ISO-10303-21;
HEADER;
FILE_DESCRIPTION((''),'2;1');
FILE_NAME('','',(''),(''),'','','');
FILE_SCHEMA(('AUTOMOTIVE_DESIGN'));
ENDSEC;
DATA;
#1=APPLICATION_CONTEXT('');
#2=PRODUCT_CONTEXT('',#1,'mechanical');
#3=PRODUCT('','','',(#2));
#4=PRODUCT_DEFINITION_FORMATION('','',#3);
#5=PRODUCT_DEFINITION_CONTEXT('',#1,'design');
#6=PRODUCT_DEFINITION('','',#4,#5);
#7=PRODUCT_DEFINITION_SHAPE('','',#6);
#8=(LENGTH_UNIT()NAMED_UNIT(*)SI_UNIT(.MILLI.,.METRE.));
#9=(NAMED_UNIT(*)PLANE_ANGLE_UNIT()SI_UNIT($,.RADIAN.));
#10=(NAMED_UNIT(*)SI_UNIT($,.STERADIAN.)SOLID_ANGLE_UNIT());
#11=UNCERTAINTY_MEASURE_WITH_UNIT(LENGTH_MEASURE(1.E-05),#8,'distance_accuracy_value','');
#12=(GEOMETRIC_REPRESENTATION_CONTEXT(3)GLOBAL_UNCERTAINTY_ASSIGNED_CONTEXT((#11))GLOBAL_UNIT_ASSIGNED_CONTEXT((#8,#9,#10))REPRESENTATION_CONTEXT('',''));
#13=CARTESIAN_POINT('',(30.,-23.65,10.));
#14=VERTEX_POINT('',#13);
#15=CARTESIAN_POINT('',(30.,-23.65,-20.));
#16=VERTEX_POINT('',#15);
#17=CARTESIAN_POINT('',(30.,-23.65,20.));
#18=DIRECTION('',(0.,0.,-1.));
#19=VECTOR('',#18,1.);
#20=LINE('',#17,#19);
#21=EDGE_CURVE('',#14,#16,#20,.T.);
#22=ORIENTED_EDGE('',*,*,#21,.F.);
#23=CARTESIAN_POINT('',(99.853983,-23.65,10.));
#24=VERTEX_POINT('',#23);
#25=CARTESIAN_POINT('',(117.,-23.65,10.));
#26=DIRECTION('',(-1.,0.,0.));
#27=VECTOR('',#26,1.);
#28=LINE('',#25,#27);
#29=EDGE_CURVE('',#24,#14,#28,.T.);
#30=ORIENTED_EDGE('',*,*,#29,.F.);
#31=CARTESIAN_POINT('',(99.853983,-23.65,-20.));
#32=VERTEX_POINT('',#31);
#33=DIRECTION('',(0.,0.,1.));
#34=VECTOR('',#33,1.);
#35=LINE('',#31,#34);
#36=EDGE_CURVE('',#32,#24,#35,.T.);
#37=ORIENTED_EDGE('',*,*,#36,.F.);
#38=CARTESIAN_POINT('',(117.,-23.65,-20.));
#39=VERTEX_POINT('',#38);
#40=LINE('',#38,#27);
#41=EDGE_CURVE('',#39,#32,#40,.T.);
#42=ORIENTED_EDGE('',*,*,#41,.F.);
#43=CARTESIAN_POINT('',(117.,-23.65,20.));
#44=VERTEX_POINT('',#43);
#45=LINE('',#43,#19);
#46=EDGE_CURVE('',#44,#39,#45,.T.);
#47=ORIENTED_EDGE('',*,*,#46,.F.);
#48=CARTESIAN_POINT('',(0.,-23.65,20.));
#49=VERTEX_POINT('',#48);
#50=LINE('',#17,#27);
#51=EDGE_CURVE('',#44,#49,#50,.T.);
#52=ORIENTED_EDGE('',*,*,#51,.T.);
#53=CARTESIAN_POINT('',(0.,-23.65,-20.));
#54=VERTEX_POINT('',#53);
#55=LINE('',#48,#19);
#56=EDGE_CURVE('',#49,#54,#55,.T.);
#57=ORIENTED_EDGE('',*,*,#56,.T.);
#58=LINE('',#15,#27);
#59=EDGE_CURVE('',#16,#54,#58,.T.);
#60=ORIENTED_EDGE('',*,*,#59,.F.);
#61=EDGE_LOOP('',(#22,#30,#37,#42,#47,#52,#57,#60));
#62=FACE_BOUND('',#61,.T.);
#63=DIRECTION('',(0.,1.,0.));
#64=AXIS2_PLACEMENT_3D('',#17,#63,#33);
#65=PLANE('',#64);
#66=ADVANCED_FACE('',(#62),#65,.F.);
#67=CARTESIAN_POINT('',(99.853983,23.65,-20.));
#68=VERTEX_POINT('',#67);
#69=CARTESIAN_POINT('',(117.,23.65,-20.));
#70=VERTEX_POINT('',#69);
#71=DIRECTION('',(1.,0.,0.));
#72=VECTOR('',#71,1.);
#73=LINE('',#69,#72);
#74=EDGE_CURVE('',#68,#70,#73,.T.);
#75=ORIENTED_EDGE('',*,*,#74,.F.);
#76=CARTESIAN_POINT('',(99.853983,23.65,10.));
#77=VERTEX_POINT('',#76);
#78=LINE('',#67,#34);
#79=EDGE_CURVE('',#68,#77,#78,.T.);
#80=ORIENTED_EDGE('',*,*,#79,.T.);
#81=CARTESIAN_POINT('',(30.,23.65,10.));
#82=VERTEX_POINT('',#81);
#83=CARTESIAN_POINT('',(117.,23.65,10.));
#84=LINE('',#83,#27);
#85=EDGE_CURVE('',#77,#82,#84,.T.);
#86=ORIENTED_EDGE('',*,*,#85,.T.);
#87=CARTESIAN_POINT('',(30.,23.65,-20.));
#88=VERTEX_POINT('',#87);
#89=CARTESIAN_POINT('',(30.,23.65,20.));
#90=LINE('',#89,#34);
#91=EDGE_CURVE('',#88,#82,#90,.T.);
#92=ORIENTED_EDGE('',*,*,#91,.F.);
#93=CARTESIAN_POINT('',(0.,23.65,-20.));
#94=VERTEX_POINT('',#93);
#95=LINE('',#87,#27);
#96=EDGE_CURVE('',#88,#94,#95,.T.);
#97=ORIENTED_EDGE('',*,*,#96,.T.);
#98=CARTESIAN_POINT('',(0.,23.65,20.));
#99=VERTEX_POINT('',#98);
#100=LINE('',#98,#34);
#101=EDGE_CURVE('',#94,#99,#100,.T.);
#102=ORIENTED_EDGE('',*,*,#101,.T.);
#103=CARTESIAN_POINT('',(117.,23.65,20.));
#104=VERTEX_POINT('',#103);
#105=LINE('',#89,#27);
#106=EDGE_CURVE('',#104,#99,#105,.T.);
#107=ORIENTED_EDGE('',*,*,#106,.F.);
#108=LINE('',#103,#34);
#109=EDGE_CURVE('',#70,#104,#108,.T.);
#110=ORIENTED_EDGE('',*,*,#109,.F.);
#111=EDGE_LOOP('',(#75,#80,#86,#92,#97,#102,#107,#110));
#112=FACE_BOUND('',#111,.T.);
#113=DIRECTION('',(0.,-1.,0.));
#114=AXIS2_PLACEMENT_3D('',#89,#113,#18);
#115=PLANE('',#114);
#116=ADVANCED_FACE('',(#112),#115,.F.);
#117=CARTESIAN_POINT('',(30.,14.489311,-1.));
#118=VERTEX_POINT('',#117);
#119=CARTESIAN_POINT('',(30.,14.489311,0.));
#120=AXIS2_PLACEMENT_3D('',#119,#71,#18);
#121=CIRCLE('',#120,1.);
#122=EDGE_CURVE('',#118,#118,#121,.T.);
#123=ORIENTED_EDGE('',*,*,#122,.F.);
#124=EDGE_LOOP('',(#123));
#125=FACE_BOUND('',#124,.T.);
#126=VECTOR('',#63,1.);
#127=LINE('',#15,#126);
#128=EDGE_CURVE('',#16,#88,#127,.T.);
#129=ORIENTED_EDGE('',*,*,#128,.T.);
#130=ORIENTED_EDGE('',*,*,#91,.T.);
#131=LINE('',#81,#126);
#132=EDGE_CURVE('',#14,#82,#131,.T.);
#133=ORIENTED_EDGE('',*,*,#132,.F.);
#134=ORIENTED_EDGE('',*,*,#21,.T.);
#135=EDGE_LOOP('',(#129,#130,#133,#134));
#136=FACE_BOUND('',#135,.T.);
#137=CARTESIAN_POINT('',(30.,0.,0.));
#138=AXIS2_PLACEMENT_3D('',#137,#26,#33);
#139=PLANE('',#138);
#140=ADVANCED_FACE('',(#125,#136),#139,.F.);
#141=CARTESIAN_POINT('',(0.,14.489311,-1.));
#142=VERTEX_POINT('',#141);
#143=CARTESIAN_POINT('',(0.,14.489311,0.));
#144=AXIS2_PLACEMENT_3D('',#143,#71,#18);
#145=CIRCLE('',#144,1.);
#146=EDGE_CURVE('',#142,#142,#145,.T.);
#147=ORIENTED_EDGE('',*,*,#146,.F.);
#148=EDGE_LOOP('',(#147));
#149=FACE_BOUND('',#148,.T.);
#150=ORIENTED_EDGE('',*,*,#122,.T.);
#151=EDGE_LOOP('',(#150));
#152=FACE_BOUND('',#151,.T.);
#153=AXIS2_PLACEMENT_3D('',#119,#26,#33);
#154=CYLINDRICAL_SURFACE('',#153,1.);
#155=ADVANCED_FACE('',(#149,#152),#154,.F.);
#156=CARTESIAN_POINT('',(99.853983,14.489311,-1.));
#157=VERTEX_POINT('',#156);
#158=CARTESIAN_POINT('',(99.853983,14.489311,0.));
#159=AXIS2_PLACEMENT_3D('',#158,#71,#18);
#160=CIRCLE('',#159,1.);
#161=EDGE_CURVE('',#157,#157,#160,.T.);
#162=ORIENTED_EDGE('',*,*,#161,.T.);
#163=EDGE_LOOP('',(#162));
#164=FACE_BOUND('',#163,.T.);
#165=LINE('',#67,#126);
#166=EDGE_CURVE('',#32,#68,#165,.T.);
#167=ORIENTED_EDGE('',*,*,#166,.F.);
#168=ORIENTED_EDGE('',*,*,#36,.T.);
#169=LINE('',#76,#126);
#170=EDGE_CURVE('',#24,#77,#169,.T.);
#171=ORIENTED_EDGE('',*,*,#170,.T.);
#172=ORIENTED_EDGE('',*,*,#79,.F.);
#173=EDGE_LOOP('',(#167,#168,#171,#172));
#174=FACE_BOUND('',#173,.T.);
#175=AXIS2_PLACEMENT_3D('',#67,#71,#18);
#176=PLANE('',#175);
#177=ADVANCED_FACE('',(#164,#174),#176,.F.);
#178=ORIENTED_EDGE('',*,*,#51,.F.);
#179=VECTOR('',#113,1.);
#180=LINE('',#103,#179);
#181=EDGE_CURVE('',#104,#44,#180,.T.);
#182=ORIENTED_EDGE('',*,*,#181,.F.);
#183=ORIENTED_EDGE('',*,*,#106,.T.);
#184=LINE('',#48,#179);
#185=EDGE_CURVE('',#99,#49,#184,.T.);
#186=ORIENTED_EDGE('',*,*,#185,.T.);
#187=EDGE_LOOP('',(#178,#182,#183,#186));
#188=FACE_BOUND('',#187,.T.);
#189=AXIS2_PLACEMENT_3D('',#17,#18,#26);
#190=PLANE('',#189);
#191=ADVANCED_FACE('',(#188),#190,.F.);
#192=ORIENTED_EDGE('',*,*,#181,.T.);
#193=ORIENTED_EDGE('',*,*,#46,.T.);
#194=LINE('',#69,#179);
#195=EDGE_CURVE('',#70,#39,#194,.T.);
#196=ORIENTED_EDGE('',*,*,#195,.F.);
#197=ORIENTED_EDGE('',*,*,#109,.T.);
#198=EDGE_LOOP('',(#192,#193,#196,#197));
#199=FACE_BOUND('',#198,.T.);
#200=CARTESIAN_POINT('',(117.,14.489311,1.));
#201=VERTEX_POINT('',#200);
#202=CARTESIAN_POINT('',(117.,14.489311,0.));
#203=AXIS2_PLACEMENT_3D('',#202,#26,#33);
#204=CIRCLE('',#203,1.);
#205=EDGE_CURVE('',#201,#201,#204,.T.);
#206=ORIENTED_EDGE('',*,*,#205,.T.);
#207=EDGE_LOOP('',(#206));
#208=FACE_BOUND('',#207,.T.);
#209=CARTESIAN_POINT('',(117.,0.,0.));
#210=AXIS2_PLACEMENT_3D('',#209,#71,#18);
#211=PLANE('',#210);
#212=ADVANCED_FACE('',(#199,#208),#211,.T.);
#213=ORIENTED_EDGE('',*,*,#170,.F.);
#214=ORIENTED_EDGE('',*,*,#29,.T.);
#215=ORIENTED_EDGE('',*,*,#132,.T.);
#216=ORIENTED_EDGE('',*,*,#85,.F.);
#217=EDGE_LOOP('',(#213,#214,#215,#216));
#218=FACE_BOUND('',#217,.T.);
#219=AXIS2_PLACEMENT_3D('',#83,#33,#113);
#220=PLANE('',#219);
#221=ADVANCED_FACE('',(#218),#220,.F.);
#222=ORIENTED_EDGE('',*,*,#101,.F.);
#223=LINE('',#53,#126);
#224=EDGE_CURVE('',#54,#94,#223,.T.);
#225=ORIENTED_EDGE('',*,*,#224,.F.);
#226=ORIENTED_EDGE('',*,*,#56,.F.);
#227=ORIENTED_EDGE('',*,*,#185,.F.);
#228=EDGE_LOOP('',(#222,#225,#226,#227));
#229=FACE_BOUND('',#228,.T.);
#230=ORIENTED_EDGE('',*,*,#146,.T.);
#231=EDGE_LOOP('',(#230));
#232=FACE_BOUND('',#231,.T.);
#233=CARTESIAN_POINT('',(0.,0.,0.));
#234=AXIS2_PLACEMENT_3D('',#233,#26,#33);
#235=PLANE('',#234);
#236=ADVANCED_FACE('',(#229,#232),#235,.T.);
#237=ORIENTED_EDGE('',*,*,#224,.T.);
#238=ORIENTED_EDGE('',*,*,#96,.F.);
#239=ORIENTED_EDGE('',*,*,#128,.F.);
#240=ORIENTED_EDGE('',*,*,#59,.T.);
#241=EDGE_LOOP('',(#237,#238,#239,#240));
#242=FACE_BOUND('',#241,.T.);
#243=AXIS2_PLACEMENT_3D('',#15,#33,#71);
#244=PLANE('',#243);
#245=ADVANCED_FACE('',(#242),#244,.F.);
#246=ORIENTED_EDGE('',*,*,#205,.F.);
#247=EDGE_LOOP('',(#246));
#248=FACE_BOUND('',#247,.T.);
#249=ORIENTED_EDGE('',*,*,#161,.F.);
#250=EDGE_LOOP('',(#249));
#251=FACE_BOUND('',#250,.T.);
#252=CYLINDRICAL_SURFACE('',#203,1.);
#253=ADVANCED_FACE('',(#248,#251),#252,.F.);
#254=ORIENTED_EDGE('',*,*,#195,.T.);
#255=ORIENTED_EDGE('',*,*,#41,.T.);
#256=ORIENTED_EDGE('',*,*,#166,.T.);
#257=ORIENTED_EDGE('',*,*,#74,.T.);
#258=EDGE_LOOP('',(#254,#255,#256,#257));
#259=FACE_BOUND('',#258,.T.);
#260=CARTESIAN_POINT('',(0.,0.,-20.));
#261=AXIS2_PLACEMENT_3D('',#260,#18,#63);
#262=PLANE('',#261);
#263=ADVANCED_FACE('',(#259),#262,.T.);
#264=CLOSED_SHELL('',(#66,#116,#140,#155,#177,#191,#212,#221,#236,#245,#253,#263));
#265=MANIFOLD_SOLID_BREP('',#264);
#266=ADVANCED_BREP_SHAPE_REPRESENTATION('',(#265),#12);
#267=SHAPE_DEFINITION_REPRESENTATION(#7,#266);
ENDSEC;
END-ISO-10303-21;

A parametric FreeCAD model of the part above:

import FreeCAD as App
import Part
import Sketcher

V = App.Vector
Q = App.Units.Quantity


def add_polygon(sketch, points):
    """Adds a closed chain of lines whose ends are joined by coincident constraints."""
    first, n = sketch.GeometryCount, len(points)
    for a, b in zip(points, points[1:] + points[:1]):
        sketch.addGeometry(Part.LineSegment(App.Vector(*a, 0), App.Vector(*b, 0)), False)
    for i in range(n):
        sketch.addConstraint(Sketcher.Constraint("Coincident", first + i, 2, first + (i + 1) % n, 1))

doc = App.newDocument("Part")
body = doc.addObject("PartDesign::Body", "Body")

# Sketch on YZ plane
sketch1 = doc.addObject("Sketcher::SketchObject", "Sketch")
body.addObject(sketch1)
sketch1.AttachmentSupport = (doc.YZ_Plane, [""])
sketch1.MapMode = "FlatFace"
add_polygon(sketch1, [(23.65, 20), (-23.65, 20), (-23.65, -20), (23.65, -20)])  # lines 0-3
sketch1.addGeometry(Part.Circle(V(14.489311, 0, 0), V(0, 0, 1), 1), False)  # 4
sketch1.addConstraint([
    Sketcher.Constraint("Horizontal", 0),
    Sketcher.Constraint("Vertical", 1),
    Sketcher.Constraint("Horizontal", 2),
    Sketcher.Constraint("Vertical", 3),
    Sketcher.Constraint("Symmetric", 0, 2, 2, 2, -1, 1),
    Sketcher.Constraint("PointOnObject", 4, 3, -1),
    Sketcher.Constraint("Diameter", 4, Q("2 mm")),
    Sketcher.Constraint("DistanceY", 1, 2, 1, 1, Q("40 mm")),
    Sketcher.Constraint("DistanceX", 0, 2, 0, 1, Q("47.3 mm")),
    Sketcher.Constraint("DistanceX", -1, 1, 4, 3, Q("14.489311 mm")),
])
pad1 = doc.addObject("PartDesign::Pad", "Pad")
body.addObject(pad1)
pad1.Profile = sketch1
pad1.Length = 30

# Sketch on YZ plane
sketch2 = doc.addObject("Sketcher::SketchObject", "Sketch001")
body.addObject(sketch2)
sketch2.AttachmentSupport = (doc.YZ_Plane, [""])
sketch2.MapMode = "FlatFace"
sketch2.AttachmentOffset = App.Placement(V(0, 0, 30), App.Rotation())
add_polygon(sketch2, [(23.65, 20), (-23.65, 20), (-23.65, 10), (23.65, 10)])  # lines 0-3
sketch2.addConstraint([
    Sketcher.Constraint("Horizontal", 0),
    Sketcher.Constraint("Vertical", 1),
    Sketcher.Constraint("Horizontal", 2),
    Sketcher.Constraint("Vertical", 3),
    Sketcher.Constraint("DistanceY", 1, 2, 1, 1, Q("10 mm")),
    Sketcher.Constraint("DistanceX", 0, 2, 0, 1, Q("47.3 mm")),
    Sketcher.Constraint("DistanceY", -1, 1, 0, 2, Q("20 mm")),
    Sketcher.Constraint("DistanceX", 0, 2, -1, 1, Q("23.65 mm")),
])
pad2 = doc.addObject("PartDesign::Pad", "Pad001")
body.addObject(pad2)
pad2.Profile = sketch2
pad2.Length = 87

# Sketch on XY plane
sketch3 = doc.addObject("Sketcher::SketchObject", "Sketch002")
body.addObject(sketch3)
sketch3.AttachmentSupport = (doc.XY_Plane, [""])
sketch3.MapMode = "FlatFace"
sketch3.AttachmentOffset = App.Placement(V(0, 0, 10), App.Rotation())
add_polygon(sketch3, [(117, 23.65), (117, -23.65), (99.853983, -23.65), (99.853983, 23.65)])  # lines 0-3
sketch3.addConstraint([
    Sketcher.Constraint("Vertical", 0),
    Sketcher.Constraint("Horizontal", 1),
    Sketcher.Constraint("Vertical", 2),
    Sketcher.Constraint("Horizontal", 3),
    Sketcher.Constraint("DistanceY", 0, 2, 0, 1, Q("47.3 mm")),
    Sketcher.Constraint("DistanceX", -1, 1, 0, 2, Q("117 mm")),
    Sketcher.Constraint("DistanceY", 0, 2, -1, 1, Q("23.65 mm")),
    Sketcher.Constraint("DistanceX", 1, 2, 1, 1, Q("17.146017 mm")),
])
pad3 = doc.addObject("PartDesign::Pad", "Pad002")
body.addObject(pad3)
pad3.Profile = sketch3
pad3.Length = 30
pad3.Reversed = True

# Sketch on YZ plane
sketch4 = doc.addObject("Sketcher::SketchObject", "Sketch003")
body.addObject(sketch4)
sketch4.AttachmentSupport = (doc.YZ_Plane, [""])
sketch4.MapMode = "FlatFace"
sketch4.addGeometry(Part.Circle(V(14.489311, 0, 0), V(0, 0, 1), 1), False)
sketch4.addConstraint([
    Sketcher.Constraint("PointOnObject", 0, 3, -1),
    Sketcher.Constraint("Diameter", 0, Q("2 mm")),
    Sketcher.Constraint("DistanceX", -1, 1, 0, 3, Q("14.489311 mm")),
])
pocket1 = doc.addObject("PartDesign::Pocket", "Pocket")
body.addObject(pocket1)
pocket1.Profile = sketch4
pocket1.Type = "ThroughAll"
pocket1.Reversed = True

doc.recompute()
